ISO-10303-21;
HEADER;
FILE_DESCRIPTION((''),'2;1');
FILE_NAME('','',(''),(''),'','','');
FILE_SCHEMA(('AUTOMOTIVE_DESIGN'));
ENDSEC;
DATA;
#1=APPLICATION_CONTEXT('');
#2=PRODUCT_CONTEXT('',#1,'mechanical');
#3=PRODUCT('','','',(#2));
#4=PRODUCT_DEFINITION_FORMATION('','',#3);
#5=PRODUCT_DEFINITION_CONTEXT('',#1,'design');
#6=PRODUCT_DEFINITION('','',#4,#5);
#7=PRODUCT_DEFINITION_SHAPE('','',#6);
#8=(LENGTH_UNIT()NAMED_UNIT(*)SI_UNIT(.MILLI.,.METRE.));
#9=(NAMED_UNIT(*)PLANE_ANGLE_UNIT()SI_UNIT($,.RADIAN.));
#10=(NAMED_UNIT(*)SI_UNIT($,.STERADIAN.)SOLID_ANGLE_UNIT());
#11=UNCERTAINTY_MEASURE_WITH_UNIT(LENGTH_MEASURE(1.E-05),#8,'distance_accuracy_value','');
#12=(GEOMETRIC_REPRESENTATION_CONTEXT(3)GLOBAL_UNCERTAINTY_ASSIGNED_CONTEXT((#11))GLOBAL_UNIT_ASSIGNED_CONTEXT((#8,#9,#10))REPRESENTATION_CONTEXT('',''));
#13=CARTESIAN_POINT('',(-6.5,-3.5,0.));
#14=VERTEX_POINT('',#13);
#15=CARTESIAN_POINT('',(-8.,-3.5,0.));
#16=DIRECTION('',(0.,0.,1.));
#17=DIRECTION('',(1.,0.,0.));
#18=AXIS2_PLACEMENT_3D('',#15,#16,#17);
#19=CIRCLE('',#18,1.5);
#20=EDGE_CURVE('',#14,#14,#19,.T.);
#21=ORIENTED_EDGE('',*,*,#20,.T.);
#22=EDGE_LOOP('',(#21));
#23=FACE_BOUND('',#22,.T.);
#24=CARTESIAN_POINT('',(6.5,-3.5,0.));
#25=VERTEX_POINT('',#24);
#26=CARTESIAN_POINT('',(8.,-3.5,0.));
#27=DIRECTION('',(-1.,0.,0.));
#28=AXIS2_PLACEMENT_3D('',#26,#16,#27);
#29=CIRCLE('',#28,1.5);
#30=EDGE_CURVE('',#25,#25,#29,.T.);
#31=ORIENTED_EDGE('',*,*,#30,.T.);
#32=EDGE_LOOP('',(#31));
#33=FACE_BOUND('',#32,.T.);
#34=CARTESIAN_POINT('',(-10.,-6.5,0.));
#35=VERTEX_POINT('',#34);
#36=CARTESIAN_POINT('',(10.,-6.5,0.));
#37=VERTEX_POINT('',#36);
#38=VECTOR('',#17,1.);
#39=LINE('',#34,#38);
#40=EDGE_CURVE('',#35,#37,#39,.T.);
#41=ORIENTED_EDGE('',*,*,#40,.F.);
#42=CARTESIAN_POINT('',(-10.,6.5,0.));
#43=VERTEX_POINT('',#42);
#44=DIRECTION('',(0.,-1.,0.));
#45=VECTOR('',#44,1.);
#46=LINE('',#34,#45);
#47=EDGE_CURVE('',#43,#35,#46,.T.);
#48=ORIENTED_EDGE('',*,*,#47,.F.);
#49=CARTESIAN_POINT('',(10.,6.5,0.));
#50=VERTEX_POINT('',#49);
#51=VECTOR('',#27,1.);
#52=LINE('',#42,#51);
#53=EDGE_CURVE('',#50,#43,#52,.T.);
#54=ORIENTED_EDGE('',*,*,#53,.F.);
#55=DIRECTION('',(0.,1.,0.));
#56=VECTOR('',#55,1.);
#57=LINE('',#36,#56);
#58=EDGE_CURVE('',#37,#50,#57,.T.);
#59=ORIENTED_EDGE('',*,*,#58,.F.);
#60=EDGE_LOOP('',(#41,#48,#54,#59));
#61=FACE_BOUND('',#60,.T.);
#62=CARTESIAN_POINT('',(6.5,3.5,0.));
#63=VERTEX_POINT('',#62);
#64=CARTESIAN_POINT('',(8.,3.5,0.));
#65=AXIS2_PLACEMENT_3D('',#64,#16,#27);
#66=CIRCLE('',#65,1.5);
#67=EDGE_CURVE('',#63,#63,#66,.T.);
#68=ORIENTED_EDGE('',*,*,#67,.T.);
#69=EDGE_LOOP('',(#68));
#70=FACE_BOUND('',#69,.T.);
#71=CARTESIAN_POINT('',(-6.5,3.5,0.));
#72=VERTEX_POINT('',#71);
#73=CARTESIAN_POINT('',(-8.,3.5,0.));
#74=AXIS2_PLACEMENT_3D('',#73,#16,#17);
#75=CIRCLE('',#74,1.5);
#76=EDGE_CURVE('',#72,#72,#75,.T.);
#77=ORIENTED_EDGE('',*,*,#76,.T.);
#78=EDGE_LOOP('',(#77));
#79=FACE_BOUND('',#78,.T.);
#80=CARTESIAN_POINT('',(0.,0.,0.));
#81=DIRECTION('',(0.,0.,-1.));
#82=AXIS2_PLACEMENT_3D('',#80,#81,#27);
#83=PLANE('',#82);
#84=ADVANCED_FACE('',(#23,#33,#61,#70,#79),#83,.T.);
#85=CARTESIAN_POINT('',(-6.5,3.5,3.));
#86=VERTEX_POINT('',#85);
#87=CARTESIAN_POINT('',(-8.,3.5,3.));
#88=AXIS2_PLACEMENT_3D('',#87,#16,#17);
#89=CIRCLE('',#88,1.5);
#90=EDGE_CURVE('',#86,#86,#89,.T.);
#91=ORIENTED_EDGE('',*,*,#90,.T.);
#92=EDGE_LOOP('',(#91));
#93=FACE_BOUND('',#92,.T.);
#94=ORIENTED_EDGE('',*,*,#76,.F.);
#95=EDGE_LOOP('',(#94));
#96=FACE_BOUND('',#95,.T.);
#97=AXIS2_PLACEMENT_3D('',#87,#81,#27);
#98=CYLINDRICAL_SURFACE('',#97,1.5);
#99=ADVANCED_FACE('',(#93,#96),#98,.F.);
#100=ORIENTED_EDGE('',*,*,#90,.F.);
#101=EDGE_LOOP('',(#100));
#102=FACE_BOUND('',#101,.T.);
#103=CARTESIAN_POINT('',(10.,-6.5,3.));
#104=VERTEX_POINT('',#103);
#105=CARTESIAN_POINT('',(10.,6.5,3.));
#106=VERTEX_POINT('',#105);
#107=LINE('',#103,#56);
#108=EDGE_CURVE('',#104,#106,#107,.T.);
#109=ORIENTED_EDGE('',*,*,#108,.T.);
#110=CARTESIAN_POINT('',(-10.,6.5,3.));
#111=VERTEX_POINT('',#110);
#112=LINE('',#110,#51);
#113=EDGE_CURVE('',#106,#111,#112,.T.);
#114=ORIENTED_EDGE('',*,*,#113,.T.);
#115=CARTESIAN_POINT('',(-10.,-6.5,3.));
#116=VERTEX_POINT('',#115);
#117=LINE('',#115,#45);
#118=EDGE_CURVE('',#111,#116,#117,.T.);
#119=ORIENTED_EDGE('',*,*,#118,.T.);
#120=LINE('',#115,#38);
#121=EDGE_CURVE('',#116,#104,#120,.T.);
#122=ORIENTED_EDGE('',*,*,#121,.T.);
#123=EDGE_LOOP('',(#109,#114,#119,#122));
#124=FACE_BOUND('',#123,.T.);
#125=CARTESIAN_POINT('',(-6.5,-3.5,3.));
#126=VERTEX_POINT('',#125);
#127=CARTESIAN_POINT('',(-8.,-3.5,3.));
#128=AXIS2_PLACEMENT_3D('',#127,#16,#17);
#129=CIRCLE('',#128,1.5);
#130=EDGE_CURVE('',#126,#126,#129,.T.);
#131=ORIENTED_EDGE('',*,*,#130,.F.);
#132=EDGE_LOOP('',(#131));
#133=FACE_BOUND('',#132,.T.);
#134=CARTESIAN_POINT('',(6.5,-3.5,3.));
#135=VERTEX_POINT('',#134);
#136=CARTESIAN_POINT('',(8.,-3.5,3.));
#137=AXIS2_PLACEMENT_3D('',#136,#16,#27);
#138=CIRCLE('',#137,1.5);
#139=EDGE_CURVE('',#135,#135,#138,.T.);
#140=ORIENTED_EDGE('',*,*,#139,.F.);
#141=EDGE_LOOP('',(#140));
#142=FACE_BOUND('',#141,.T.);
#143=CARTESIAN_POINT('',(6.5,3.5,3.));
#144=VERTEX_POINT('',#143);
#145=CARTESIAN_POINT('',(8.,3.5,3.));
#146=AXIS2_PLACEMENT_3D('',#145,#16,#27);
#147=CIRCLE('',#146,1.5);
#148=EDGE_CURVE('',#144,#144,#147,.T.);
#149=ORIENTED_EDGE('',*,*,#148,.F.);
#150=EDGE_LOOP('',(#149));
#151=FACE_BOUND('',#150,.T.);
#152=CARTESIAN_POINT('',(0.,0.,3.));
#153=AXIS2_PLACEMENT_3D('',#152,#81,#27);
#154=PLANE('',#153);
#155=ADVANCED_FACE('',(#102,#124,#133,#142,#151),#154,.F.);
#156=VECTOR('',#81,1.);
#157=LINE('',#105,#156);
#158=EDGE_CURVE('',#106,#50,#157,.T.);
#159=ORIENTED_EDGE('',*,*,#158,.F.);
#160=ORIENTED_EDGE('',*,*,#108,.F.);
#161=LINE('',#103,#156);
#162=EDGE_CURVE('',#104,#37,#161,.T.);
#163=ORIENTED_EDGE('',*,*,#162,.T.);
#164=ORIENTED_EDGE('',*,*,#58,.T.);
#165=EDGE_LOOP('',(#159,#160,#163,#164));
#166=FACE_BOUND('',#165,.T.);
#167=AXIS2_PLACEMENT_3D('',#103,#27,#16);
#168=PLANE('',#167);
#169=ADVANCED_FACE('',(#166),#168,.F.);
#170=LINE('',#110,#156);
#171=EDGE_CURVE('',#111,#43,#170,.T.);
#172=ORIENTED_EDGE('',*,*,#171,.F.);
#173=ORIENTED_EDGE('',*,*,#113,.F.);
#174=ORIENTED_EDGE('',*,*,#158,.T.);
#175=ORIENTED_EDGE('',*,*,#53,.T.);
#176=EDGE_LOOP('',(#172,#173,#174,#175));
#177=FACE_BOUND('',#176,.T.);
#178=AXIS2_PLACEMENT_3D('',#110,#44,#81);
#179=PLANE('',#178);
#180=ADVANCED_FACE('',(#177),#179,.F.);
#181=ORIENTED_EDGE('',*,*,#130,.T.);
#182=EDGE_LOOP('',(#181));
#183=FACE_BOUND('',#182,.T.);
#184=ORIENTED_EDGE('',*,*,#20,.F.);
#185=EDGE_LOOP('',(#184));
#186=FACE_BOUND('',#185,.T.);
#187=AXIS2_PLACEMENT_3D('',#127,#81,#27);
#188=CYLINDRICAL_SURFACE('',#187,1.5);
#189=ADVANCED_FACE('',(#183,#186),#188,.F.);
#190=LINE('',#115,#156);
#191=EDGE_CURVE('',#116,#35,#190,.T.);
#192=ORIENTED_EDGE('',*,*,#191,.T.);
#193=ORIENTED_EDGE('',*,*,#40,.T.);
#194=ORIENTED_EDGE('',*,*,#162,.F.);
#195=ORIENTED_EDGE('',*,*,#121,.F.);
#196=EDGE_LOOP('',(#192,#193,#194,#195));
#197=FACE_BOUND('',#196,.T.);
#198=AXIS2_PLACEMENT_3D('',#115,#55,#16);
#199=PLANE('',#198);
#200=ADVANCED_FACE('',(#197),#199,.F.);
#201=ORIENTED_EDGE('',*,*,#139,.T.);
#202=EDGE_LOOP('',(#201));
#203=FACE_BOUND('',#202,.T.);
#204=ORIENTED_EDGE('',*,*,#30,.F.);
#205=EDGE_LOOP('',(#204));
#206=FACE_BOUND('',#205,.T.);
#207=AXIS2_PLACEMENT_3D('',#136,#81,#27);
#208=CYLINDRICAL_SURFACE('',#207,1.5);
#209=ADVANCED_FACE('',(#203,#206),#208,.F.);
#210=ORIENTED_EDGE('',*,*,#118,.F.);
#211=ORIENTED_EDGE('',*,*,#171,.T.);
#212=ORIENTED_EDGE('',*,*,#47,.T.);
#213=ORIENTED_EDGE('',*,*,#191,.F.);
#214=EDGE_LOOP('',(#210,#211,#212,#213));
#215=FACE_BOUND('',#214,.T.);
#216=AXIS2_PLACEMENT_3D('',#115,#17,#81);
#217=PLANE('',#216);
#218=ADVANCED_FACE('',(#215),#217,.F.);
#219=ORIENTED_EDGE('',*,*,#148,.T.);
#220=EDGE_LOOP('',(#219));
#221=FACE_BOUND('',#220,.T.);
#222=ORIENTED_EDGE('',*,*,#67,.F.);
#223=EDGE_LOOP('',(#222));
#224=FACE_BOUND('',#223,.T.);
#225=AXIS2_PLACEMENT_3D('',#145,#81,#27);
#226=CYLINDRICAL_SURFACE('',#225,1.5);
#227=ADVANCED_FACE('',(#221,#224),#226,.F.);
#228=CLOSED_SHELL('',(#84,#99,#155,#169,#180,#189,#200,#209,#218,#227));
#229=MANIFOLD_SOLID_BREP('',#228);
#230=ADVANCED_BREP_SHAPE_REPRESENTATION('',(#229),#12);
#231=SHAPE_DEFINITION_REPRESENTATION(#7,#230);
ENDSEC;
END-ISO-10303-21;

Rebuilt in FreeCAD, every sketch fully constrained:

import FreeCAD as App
import Part
import Sketcher

V = App.Vector

doc = App.newDocument("Part")
params = doc.addObject("Spreadsheet::Sheet", "Params")
for row, (alias, value) in enumerate([
    ("sketch1_diameter", "3 mm"),
    ("sketch1_width", "20 mm"),
    ("sketch1_height", "13 mm"),
    ("pad1_length", "3 mm"),
], start=1):
    params.set(f"A{row}", alias)
    params.set(f"B{row}", "=" + value)
    params.setAlias(f"B{row}", alias)

body = doc.addObject("PartDesign::Body", "Body")

# Sketch on XY plane
sketch1 = body.newObject("Sketcher::SketchObject", "Sketch")
sketch1.AttachmentSupport = (doc.getObject("XY_Plane"), [""])
sketch1.MapMode = "FlatFace"
sketch1.addGeometry([
    Part.LineSegment(V(-10, 6.5, 0), V(-10, -6.5, 0)),  # 0
    Part.LineSegment(V(-10, -6.5, 0), V(10, -6.5, 0)),  # 1
    Part.LineSegment(V(10, -6.5, 0), V(10, 6.5, 0)),  # 2
    Part.LineSegment(V(10, 6.5, 0), V(-10, 6.5, 0)),  # 3
    Part.Circle(V(-8, -3.5, 0), V(0, 0, 1), 1.5),  # 4
    Part.Circle(V(8, -3.5, 0), V(0, 0, 1), 1.5),  # 5
    Part.Circle(V(-8, 3.5, 0), V(0, 0, 1), 1.5),  # 6
    Part.Circle(V(8, 3.5, 0), V(0, 0, 1), 1.5),  # 7
], False)
sketch1.addConstraint([
    Sketcher.Constraint("Coincident", 0, 2, 1, 1),
    Sketcher.Constraint("Coincident", 1, 2, 2, 1),
    Sketcher.Constraint("Coincident", 2, 2, 3, 1),
    Sketcher.Constraint("Coincident", 3, 2, 0, 1),
    Sketcher.Constraint("Vertical", 0),
    Sketcher.Constraint("Horizontal", 1),
    Sketcher.Constraint("Vertical", 2),
    Sketcher.Constraint("Horizontal", 3),
    Sketcher.Constraint("Equal", 4, 5),
    Sketcher.Constraint("Equal", 5, 6),
    Sketcher.Constraint("Equal", 6, 7),
    Sketcher.Constraint("Symmetric", 5, 3, 6, 3, -1, 1),
    Sketcher.Constraint("Symmetric", 4, 3, 7, 3, -1, 1),
    Sketcher.Constraint("Symmetric", 0, 2, 2, 2, -1, 1),
    Sketcher.Constraint("Symmetric", 4, 3, 5, 3, -2),
    Sketcher.Constraint("Diameter", 4, 3.0),
    Sketcher.Constraint("DistanceX", 1, 1, 1, 2, 20.0),
    Sketcher.Constraint("DistanceY", 0, 2, 0, 1, 13.0),
    Sketcher.Constraint("DistanceX", 4, 3, -1, 1, 8.0),
    Sketcher.Constraint("DistanceY", 4, 3, 6, 3, 7.0),
])
sketch1.setExpression("Constraints[15]", "Params.sketch1_diameter")
sketch1.setExpression("Constraints[16]", "Params.sketch1_width")
sketch1.setExpression("Constraints[17]", "Params.sketch1_height")
pad1 = body.newObject("PartDesign::Pad", "Pad")
pad1.Profile = sketch1
pad1.setExpression("Length", "Params.pad1_length")

doc.recompute()
